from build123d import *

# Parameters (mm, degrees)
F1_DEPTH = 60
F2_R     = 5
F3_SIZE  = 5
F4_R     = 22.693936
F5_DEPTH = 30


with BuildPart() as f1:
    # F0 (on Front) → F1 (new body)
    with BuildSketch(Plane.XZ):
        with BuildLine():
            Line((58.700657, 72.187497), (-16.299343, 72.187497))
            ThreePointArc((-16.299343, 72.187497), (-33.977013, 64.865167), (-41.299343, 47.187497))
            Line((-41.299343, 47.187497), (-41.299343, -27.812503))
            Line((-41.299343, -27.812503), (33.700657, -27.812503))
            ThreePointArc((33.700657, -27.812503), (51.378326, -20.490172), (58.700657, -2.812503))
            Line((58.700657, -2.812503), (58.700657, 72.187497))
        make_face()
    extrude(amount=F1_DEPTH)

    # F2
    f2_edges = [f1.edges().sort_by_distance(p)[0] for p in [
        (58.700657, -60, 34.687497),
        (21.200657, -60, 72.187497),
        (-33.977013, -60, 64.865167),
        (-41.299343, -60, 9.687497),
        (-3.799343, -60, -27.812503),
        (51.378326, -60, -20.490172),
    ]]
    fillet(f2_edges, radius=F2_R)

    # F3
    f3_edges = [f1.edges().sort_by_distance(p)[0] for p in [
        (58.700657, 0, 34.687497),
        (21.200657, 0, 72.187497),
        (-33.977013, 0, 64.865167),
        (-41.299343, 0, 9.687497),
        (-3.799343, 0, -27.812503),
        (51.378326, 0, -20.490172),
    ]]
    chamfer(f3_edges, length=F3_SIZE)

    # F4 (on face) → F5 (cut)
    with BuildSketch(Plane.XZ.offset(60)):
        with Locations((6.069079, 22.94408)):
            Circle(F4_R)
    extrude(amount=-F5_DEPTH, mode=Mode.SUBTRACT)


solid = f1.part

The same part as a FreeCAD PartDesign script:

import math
import FreeCAD as App
import Part
import Sketcher

V = App.Vector
Q = App.Units.Quantity


def edges_at(feature, points):
    """Names of the edges that pass closest to the given points."""
    edges = feature.Shape.Edges
    near = lambda p: min(range(len(edges)), key=lambda i: edges[i].distToShape(Part.Vertex(*p))[0])
    return sorted({f"Edge{near(p) + 1}" for p in points})

doc = App.newDocument("Part")
body = doc.addObject("PartDesign::Body", "Body")

# Sketch on XZ plane
sketch1 = body.newObject("Sketcher::SketchObject", "Sketch")
sketch1.AttachmentSupport = (doc.getObject("XZ_Plane"), [""])
sketch1.MapMode = "FlatFace"
sketch1.addGeometry(Part.LineSegment(V(59, 72, 0), V(-16, 72, 0)), False)
sketch1.addGeometry(Part.ArcOfCircle(Part.Circle(V(-16, 47, 0), V(0, 0, 1), 25), math.radians(90), math.radians(180)), False)
sketch1.addGeometry(Part.LineSegment(V(-41, 47, 0), V(-41, -28, 0)), False)
sketch1.addGeometry(Part.LineSegment(V(-41, -28, 0), V(34, -28, 0)), False)
sketch1.addGeometry(Part.ArcOfCircle(Part.Circle(V(34, -3, 0), V(0, 0, 1), 25), math.radians(-90), math.radians(0)), False)
sketch1.addGeometry(Part.LineSegment(V(59, -3, 0), V(59, 72, 0)), False)
sketch1.addConstraint(Sketcher.Constraint("Tangent", 0, 2, 1, 1))
sketch1.addConstraint(Sketcher.Constraint("Tangent", 1, 2, 2, 1))
sketch1.addConstraint(Sketcher.Constraint("Coincident", 2, 2, 3, 1))
sketch1.addConstraint(Sketcher.Constraint("Tangent", 3, 2, 4, 1))
sketch1.addConstraint(Sketcher.Constraint("Tangent", 4, 2, 5, 1))
sketch1.addConstraint(Sketcher.Constraint("Coincident", 5, 2, 0, 1))
sketch1.addConstraint(Sketcher.Constraint("Horizontal", 0))
sketch1.addConstraint(Sketcher.Constraint("Vertical", 2))
sketch1.addConstraint(Sketcher.Constraint("Horizontal", 3))
sketch1.addConstraint(Sketcher.Constraint("Vertical", 5))
sketch1.addConstraint(Sketcher.Constraint("Equal", 0, 3))
sketch1.addConstraint(Sketcher.Constraint("Equal", 3, 2))
sketch1.addConstraint(Sketcher.Constraint("Radius", 1, Q("24.999998 mm")))
sketch1.addConstraint(Sketcher.Constraint("DistanceX", 0, 2, 0, 1, Q("75 mm")))
sketch1.addConstraint(Sketcher.Constraint("DistanceY", -1, 1, 1, 3, Q("47.187499 mm")))
sketch1.addConstraint(Sketcher.Constraint("DistanceX", 1, 3, -1, 1, Q("16.299345 mm")))
pad1 = body.newObject("PartDesign::Pad", "Pad")
pad1.Profile = sketch1
pad1.Length = 60
doc.recompute()

fillet = body.newObject("PartDesign::Fillet", "Fillet")
fillet.Base = (pad1, edges_at(pad1, [
    (58.701, -60, 34.687),
    (21.201, -60, 72.187),
    (-33.977, -60, 64.865),
    (-41.299, -60, 9.687),
    (-3.799, -60, -27.813),
    (51.378, -60, -20.49),
]))
fillet.Radius = 5
doc.recompute()

chamfer = body.newObject("PartDesign::Chamfer", "Chamfer")
chamfer.Base = (fillet, edges_at(fillet, [
    (58.701, 0, 34.687),
    (21.201, 0, 72.187),
    (-33.977, 0, 64.865),
    (-41.299, 0, 9.687),
    (-3.799, 0, -27.813),
    (51.378, 0, -20.49),
]))
chamfer.Size = 5

# Sketch on XZ plane
sketch2 = body.newObject("Sketcher::SketchObject", "Sketch001")
sketch2.AttachmentSupport = (doc.getObject("XZ_Plane"), [""])
sketch2.MapMode = "FlatFace"
sketch2.AttachmentOffset = App.Placement(V(0, 0, 60), App.Rotation())
sketch2.addGeometry(Part.Circle(V(6, 23, 0), V(0, 0, 1), 23), False)
sketch2.addConstraint(Sketcher.Constraint("Diameter", 0, Q("45.387872 mm")))
sketch2.addConstraint(Sketcher.Constraint("DistanceX", -1, 1, 0, 3, Q("6.069079 mm")))
sketch2.addConstraint(Sketcher.Constraint("DistanceY", -1, 1, 0, 3, Q("22.94408 mm")))
pocket1 = body.newObject("PartDesign::Pocket", "Pocket")
pocket1.Profile = sketch2
pocket1.Length = 30

doc.recompute()
